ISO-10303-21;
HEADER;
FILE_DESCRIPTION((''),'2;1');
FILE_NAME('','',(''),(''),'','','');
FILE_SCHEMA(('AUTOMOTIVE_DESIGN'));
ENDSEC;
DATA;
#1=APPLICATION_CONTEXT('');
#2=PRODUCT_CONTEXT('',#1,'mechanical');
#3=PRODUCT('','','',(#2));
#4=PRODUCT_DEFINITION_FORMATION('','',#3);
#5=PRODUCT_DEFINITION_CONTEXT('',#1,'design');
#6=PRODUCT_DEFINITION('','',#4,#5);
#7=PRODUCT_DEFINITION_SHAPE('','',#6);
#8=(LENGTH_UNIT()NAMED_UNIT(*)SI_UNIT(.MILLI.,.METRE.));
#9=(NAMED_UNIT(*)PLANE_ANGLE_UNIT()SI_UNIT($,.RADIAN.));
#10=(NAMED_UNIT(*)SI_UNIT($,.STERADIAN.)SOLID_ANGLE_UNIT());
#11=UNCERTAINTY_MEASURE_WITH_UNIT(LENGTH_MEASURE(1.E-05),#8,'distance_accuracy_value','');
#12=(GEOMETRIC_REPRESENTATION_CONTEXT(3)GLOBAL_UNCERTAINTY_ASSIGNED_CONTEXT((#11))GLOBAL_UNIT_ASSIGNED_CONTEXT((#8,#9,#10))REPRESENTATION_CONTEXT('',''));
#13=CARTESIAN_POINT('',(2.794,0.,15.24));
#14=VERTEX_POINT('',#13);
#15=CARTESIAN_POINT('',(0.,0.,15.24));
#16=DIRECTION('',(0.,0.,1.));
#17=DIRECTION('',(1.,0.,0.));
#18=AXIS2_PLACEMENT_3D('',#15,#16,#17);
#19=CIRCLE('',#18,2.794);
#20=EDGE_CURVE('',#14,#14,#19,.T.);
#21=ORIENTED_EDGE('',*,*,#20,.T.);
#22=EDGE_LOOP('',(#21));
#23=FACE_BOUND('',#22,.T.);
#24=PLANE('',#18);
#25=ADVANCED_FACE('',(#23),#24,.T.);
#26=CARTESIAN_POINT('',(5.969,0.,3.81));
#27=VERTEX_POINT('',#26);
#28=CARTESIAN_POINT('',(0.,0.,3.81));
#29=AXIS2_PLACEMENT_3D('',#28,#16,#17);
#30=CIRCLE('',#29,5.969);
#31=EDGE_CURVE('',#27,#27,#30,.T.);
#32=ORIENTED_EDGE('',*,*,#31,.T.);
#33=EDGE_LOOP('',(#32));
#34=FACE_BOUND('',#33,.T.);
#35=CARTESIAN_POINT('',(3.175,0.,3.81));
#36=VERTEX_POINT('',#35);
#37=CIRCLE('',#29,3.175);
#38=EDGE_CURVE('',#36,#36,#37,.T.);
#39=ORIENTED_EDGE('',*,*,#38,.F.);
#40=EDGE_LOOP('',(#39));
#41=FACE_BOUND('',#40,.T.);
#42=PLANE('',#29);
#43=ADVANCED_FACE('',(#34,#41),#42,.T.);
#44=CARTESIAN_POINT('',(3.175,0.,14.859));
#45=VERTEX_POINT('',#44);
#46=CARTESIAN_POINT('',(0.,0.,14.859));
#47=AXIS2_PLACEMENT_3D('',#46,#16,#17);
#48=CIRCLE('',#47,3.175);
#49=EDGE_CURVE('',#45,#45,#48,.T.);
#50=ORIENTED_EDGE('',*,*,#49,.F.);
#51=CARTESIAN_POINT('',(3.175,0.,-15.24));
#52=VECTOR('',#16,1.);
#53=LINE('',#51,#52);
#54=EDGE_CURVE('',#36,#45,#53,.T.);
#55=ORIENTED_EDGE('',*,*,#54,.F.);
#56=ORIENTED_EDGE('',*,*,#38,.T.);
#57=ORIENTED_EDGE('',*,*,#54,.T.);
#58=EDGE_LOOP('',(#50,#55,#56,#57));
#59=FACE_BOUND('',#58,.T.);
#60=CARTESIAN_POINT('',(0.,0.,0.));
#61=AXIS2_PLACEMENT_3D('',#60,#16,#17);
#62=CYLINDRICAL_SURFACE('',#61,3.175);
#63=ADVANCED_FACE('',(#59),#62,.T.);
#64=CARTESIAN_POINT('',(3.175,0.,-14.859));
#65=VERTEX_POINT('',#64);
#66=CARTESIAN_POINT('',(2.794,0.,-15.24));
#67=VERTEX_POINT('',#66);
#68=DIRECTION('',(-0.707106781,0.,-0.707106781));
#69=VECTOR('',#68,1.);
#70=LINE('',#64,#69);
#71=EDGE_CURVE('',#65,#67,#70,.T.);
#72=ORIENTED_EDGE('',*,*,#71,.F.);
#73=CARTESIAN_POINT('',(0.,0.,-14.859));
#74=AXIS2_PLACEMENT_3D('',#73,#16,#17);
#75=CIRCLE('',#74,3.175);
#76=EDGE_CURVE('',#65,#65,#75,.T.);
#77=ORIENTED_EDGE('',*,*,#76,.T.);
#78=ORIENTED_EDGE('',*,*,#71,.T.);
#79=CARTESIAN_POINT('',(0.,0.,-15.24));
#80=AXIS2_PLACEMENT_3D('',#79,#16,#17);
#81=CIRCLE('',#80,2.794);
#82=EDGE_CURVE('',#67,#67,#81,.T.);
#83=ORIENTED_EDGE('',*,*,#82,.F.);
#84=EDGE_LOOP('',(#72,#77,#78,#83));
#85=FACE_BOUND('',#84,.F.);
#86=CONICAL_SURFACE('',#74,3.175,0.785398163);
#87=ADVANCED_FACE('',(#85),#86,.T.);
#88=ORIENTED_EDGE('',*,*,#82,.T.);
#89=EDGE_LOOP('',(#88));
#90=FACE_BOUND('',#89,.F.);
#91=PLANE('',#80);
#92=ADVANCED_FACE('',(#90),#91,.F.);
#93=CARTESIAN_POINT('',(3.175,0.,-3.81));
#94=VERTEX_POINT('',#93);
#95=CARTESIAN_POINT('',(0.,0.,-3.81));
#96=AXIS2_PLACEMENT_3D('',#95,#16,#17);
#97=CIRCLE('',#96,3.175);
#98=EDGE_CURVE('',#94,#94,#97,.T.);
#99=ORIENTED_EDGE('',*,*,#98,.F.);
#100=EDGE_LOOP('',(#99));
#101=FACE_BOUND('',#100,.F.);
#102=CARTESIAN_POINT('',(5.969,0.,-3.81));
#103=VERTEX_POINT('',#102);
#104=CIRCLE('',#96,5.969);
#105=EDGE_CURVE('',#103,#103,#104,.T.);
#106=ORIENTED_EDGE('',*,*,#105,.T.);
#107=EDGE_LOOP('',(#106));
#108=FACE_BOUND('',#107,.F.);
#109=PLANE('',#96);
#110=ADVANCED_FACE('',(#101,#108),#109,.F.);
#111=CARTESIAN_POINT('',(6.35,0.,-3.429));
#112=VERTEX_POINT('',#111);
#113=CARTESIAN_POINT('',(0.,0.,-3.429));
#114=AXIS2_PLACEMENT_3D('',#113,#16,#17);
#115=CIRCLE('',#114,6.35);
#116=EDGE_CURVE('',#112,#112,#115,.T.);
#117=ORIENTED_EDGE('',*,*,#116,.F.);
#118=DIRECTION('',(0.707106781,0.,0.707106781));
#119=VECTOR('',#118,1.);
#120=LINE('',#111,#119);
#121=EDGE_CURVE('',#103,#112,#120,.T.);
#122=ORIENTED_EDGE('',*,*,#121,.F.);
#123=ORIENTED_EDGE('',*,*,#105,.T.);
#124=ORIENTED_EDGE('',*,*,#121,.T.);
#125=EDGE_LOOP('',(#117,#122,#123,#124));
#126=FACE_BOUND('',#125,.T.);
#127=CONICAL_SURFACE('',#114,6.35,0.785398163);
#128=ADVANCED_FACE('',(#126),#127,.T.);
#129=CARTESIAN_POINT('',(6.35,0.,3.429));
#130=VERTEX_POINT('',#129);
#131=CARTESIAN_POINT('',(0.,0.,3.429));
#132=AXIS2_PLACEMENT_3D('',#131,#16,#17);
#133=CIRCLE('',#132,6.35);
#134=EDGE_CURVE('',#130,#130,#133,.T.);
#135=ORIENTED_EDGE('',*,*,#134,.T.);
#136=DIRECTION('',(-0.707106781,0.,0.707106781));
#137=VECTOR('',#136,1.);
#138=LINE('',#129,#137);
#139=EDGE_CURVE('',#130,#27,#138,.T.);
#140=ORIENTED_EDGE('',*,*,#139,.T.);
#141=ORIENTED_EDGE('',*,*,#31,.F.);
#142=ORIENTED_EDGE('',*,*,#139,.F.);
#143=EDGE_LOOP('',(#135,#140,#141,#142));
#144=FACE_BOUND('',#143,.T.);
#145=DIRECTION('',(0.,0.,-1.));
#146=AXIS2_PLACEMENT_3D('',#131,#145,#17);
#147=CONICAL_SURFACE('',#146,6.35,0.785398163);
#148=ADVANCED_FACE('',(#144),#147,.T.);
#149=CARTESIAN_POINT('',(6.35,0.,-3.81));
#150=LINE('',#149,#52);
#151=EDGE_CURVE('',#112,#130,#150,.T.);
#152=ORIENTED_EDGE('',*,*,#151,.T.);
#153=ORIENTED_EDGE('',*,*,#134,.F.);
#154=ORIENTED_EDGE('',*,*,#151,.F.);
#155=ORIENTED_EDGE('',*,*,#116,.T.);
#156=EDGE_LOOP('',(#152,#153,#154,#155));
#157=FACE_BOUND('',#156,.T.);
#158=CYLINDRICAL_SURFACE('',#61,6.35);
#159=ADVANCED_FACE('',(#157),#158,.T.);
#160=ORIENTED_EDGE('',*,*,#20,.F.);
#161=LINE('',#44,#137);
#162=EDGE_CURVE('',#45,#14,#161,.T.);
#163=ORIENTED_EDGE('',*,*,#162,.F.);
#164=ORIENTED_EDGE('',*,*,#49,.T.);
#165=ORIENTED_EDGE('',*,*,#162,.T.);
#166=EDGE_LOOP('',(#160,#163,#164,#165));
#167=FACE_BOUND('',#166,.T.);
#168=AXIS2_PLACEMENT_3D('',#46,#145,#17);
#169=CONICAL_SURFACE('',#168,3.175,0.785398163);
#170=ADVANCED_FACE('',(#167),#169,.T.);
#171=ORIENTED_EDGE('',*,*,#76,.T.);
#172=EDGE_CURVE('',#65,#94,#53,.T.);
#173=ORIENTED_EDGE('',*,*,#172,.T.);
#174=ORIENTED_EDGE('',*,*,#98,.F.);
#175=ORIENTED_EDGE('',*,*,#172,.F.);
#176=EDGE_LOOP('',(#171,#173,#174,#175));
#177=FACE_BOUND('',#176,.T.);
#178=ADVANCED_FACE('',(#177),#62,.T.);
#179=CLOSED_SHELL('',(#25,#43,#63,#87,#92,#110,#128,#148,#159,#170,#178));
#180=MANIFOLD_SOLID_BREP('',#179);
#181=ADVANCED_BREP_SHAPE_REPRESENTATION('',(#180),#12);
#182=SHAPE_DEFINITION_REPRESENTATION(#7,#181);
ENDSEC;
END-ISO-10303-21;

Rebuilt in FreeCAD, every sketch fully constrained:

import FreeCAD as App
import Part
import Sketcher
Q = App.Units.Quantity


def edges_at(feature, points):
    """Names of the edges that pass closest to the given points."""
    edges = feature.Shape.Edges
    near = lambda p: min(range(len(edges)), key=lambda i: edges[i].distToShape(Part.Vertex(*p))[0])
    return sorted({f"Edge{near(p) + 1}" for p in points})

doc = App.newDocument("Part")
params = doc.addObject("Spreadsheet::Sheet", "Params")
for row, (alias, value) in enumerate([
    ("sketch1_diameter", "0.25 in"),
    ("pad1_length", "1.2 in"),
    ("sketch2_diameter", "0.5 in"),
    ("sketch2_diameter2", "0.25 in"),
    ("pad2_length", "0.3 in"),
    ("chamfer_size", "0.015 in"),
], start=1):
    params.set(f"A{row}", alias)
    params.set(f"B{row}", "=" + value)
    params.setAlias(f"B{row}", alias)

body = doc.addObject("PartDesign::Body", "Body")

sketch1 = body.newObject("Sketcher::SketchObject", "Sketch")
sketch1.AttachmentSupport = (doc.getObject("XY_Plane"), [""])
sketch1.MapMode = "FlatFace"
sketch1.addGeometry(Part.Circle(App.Vector(0, 0, 0), App.Vector(0, 0, 1), 3.2), False)
sketch1.addConstraint(Sketcher.Constraint("Coincident", 0, 3, -1, 1))
sketch1.addConstraint(Sketcher.Constraint("Diameter", 0, Q("0.25 in")))
sketch1.setExpression("Constraints[1]", "Params.sketch1_diameter")
pad1 = body.newObject("PartDesign::Pad", "Pad")
pad1.Profile = sketch1
pad1.setExpression("Length", "Params.pad1_length")
pad1.Midplane = True

sketch2 = body.newObject("Sketcher::SketchObject", "Sketch001")
sketch2.AttachmentSupport = (doc.getObject("XY_Plane"), [""])
sketch2.MapMode = "FlatFace"
sketch2.addGeometry(Part.Circle(App.Vector(0, 0, 0), App.Vector(0, 0, 1), 6.3), False)
sketch2.addGeometry(Part.Circle(App.Vector(0, 0, 0), App.Vector(0, 0, 1), 3.2), False)
sketch2.addConstraint(Sketcher.Constraint("Coincident", 0, 3, -1, 1))
sketch2.addConstraint(Sketcher.Constraint("Coincident", 1, 3, -1, 1))
sketch2.addConstraint(Sketcher.Constraint("Diameter", 0, Q("0.5 in")))
sketch2.addConstraint(Sketcher.Constraint("Diameter", 1, Q("0.25 in")))
sketch2.setExpression("Constraints[2]", "Params.sketch2_diameter")
sketch2.setExpression("Constraints[3]", "Params.sketch2_diameter2")
pad2 = body.newObject("PartDesign::Pad", "Pad001")
pad2.Profile = sketch2
pad2.setExpression("Length", "Params.pad2_length")
pad2.Midplane = True
doc.recompute()

chamfer = body.newObject("PartDesign::Chamfer", "Chamfer")
chamfer.Base = (pad2, edges_at(pad2, [
    (-6.35, 0, 3.81),
    (-6.35, 0, -3.81),
    (-3.175, 0, 15.24),
    (-3.175, 0, -15.24),
]))
chamfer.setExpression("Size", "Params.chamfer_size")

doc.recompute()
